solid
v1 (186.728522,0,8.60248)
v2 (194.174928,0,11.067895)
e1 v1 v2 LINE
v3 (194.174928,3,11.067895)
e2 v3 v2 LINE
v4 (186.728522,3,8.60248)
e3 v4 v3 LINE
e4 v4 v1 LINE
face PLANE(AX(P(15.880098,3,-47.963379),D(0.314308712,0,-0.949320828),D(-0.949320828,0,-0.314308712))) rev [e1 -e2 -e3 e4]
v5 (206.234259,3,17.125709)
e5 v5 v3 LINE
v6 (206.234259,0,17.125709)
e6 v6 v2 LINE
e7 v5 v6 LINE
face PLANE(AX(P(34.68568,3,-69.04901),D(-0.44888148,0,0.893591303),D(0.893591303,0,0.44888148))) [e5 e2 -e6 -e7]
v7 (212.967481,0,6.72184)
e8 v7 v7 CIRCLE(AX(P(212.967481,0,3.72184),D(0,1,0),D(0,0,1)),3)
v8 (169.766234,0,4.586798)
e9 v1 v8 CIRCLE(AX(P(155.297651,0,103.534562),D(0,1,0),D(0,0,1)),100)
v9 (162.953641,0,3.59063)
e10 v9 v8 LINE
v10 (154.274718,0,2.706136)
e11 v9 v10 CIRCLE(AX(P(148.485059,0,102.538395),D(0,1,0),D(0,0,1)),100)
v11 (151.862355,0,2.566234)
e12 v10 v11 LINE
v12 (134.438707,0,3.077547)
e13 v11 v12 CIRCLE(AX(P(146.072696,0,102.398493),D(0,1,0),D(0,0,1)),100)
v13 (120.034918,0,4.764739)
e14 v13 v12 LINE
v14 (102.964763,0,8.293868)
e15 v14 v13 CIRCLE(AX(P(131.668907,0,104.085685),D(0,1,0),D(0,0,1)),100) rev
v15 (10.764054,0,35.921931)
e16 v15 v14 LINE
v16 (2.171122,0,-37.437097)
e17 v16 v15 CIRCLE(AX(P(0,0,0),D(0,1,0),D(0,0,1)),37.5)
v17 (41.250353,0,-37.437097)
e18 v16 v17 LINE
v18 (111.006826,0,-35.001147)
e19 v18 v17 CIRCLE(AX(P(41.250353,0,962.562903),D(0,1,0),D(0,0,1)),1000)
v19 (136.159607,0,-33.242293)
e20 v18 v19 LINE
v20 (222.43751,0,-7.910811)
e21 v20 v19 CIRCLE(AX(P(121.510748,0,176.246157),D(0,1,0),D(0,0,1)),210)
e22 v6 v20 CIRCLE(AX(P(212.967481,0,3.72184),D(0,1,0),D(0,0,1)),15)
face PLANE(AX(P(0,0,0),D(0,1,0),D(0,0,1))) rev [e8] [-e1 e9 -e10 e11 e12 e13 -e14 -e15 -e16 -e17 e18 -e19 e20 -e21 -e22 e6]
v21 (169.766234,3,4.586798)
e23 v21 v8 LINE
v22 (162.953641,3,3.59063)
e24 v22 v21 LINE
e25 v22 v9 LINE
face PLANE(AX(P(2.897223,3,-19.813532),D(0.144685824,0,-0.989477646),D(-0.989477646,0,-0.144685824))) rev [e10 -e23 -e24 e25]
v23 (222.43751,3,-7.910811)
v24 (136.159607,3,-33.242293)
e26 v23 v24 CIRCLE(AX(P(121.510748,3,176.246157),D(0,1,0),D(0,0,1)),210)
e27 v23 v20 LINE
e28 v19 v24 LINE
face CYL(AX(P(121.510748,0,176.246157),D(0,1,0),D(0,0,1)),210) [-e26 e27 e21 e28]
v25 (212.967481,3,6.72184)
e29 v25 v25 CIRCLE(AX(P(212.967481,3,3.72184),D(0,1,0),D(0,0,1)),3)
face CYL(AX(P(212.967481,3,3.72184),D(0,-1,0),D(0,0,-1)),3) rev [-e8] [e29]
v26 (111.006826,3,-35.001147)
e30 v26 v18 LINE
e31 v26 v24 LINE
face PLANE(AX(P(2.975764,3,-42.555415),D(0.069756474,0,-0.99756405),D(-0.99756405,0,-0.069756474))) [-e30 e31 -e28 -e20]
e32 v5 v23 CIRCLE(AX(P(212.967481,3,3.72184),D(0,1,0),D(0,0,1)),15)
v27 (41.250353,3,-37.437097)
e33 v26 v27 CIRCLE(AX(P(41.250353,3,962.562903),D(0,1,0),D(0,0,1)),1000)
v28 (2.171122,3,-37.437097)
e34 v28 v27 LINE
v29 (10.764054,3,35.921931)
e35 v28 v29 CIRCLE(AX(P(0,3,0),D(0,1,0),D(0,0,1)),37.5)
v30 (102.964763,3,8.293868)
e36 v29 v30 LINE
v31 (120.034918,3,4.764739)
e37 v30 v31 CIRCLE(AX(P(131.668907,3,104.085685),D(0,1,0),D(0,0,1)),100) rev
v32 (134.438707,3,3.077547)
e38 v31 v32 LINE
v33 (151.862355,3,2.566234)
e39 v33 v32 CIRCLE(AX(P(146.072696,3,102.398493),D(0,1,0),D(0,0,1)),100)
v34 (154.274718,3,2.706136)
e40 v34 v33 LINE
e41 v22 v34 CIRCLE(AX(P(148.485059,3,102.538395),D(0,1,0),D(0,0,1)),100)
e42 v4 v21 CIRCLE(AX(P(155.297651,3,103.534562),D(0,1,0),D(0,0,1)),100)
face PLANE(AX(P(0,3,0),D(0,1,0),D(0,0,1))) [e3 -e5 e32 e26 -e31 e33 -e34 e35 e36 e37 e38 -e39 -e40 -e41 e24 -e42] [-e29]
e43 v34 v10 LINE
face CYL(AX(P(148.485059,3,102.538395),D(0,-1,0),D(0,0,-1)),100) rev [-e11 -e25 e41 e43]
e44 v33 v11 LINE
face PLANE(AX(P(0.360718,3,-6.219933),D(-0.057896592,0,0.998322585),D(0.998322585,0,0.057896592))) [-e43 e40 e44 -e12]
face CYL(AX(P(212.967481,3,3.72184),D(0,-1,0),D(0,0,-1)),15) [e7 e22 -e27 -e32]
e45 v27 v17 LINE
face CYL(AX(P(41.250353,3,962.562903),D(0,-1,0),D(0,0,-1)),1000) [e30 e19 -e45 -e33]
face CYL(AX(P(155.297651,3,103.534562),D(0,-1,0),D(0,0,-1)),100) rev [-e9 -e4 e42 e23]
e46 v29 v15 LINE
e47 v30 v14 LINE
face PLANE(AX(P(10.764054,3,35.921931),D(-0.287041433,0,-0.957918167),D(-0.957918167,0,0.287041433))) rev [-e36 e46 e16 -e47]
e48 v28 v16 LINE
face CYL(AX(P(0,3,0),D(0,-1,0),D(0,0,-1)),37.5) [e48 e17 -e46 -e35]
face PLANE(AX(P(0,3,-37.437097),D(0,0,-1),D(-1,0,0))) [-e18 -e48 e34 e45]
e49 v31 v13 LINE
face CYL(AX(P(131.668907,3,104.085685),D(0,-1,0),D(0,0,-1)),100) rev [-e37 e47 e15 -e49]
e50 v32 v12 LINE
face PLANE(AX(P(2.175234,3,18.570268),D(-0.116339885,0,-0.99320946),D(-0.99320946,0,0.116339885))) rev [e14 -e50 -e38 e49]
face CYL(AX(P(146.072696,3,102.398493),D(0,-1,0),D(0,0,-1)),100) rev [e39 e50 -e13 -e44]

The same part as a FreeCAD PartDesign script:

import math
import FreeCAD as App
import Part
import Sketcher
from FreeCAD import Vector
Q = App.Units.Quantity

doc = App.newDocument("Part")
body = doc.addObject("PartDesign::Body", "Body")

sketch1 = body.newObject("Sketcher::SketchObject", "Sketch")
sketch1.AttachmentSupport = (doc.getObject("XZ_Plane"), [""])
sketch1.MapMode = "FlatFace"
sketch1.addGeometry(Part.LineSegment(Vector(41.3, -37.4, 0), Vector(2.2, -37.4, 0)), False)
sketch1.addGeometry(Part.ArcOfCircle(Part.Circle(Vector(0, 0, 0), Vector(0, 0, 1), 37.5), math.radians(73), math.radians(273)), False)
sketch1.addGeometry(Part.LineSegment(Vector(10.8, 35.9, 0), Vector(103, 8.3, 0)), False)
sketch1.addGeometry(Part.ArcOfCircle(Part.Circle(Vector(131.7, 104.1, 0), Vector(0, 0, 1), 100), math.radians(-106.68), math.radians(-96.68)), False)
sketch1.addGeometry(Part.LineSegment(Vector(120, 4.8, 0), Vector(134.4, 3.1, 0)), False)
sketch1.addGeometry(Part.ArcOfCircle(Part.Circle(Vector(146.1, 102.4, 0), Vector(0, 0, 1), 100), math.radians(-96.68), math.radians(-86.68)), False)
sketch1.addGeometry(Part.LineSegment(Vector(151.9, 2.6, 0), Vector(154.3, 2.7, 0)), False)
sketch1.addGeometry(Part.ArcOfCircle(Part.Circle(Vector(148.5, 102.5, 0), Vector(0, 0, 1), 100), math.radians(-86.68), math.radians(-81.68)), False)
sketch1.addGeometry(Part.LineSegment(Vector(163, 3.6, 0), Vector(169.8, 4.6, 0)), False)
sketch1.addGeometry(Part.ArcOfCircle(Part.Circle(Vector(155.3, 103.5, 0), Vector(0, 0, 1), 100), math.radians(-81.68), math.radians(-71.68)), False)
sketch1.addGeometry(Part.LineSegment(Vector(186.7, 8.6, 0), Vector(194.2, 11.1, 0)), False)
sketch1.addGeometry(Part.LineSegment(Vector(194.2, 11.1, 0), Vector(206.2, 17.1, 0)), False)
sketch1.addGeometry(Part.ArcOfCircle(Part.Circle(Vector(213, 3.7, 0), Vector(0, 0, 1), 15), math.radians(-51), math.radians(117)), False)
sketch1.addGeometry(Part.LineSegment(Vector(222.4, -7.9, 0), Vector(215.5, -12.6, 0)), False)
sketch1.addGeometry(Part.ArcOfCircle(Part.Circle(Vector(159.6, 70.3, 0), Vector(0, 0, 1), 100), math.radians(-76), math.radians(-56)), False)
sketch1.addGeometry(Part.LineSegment(Vector(183.8, -26.7, 0), Vector(174.4, -29, 0)), False)
sketch1.addGeometry(Part.ArcOfCircle(Part.Circle(Vector(150.2, 68, 0), Vector(0, 0, 1), 100), math.radians(-86), math.radians(-76)), False)
sketch1.addGeometry(Part.LineSegment(Vector(157.2, -31.8, 0), Vector(111, -35, 0)), False)
sketch1.addGeometry(Part.ArcOfCircle(Part.Circle(Vector(41.3, 962.6, 0), Vector(0, 0, 1), 1000), math.radians(-90), math.radians(-86)), False)
sketch1.addGeometry(Part.Circle(Vector(213, 3.7, 0), Vector(0, 0, 1), 3), False)
sketch1.addConstraint(Sketcher.Constraint("Coincident", 0, 2, 1, 2))
sketch1.addConstraint(Sketcher.Constraint("Tangent", 1, 1, 2, 1))
sketch1.addConstraint(Sketcher.Constraint("Tangent", 2, 2, 3, 1))
sketch1.addConstraint(Sketcher.Constraint("Tangent", 3, 2, 4, 1))
sketch1.addConstraint(Sketcher.Constraint("Tangent", 4, 2, 5, 1))
sketch1.addConstraint(Sketcher.Constraint("Tangent", 5, 2, 6, 1))
sketch1.addConstraint(Sketcher.Constraint("Tangent", 6, 2, 7, 1))
sketch1.addConstraint(Sketcher.Constraint("Tangent", 7, 2, 8, 1))
sketch1.addConstraint(Sketcher.Constraint("Tangent", 8, 2, 9, 1))
sketch1.addConstraint(Sketcher.Constraint("Tangent", 9, 2, 10, 1))
sketch1.addConstraint(Sketcher.Constraint("Coincident", 10, 2, 11, 1))
sketch1.addConstraint(Sketcher.Constraint("Tangent", 11, 2, 12, 2))
sketch1.addConstraint(Sketcher.Constraint("Coincident", 12, 1, 13, 1))
sketch1.addConstraint(Sketcher.Constraint("Tangent", 13, 2, 14, 2))
sketch1.addConstraint(Sketcher.Constraint("Tangent", 14, 1, 15, 1))
sketch1.addConstraint(Sketcher.Constraint("Tangent", 15, 2, 16, 2))
sketch1.addConstraint(Sketcher.Constraint("Tangent", 16, 1, 17, 1))
sketch1.addConstraint(Sketcher.Constraint("Tangent", 17, 2, 18, 2))
sketch1.addConstraint(Sketcher.Constraint("Tangent", 18, 1, 0, 1))
sketch1.addConstraint(Sketcher.Constraint("Horizontal", 0))
sketch1.addConstraint(Sketcher.Constraint("Coincident", 1, 3, -1, 1))
sketch1.addConstraint(Sketcher.Constraint("Coincident", 19, 3, 12, 3))
sketch1.addConstraint(Sketcher.Constraint("Equal", 3, 5))
sketch1.addConstraint(Sketcher.Constraint("Equal", 5, 7))
sketch1.addConstraint(Sketcher.Constraint("Equal", 7, 9))
sketch1.addConstraint(Sketcher.Constraint("Equal", 9, 14))
sketch1.addConstraint(Sketcher.Constraint("Equal", 14, 16))
sketch1.addConstraint(Sketcher.Constraint("Diameter", 19, 6.0))
sketch1.addConstraint(Sketcher.Constraint("Radius", 3, 100.0))
sketch1.addConstraint(Sketcher.Constraint("Radius", 12, 15.0))
sketch1.addConstraint(Sketcher.Constraint("Radius", 18, 1000.0))
sketch1.addConstraint(Sketcher.Constraint("Radius", 1, 37.5))
sketch1.addConstraint(Sketcher.Constraint("Angle", 13, Q("-146 deg")))
sketch1.addConstraint(Sketcher.Constraint("Angle", 15, Q("-166 deg")))
sketch1.addConstraint(Sketcher.Constraint("Angle", 17, Q("-176 deg")))
sketch1.addConstraint(Sketcher.Constraint("Distance", 13, 8.367302))
sketch1.addConstraint(Sketcher.Constraint("DistanceX", 0, 2, 0, 1, 39.079231))
sketch1.addConstraint(Sketcher.Constraint("DistanceY", -1, 1, 16, 3, 67.987101))
sketch1.addConstraint(Sketcher.Constraint("DistanceX", -1, 1, 14, 1, 183.773601))
sketch1.addConstraint(Sketcher.Constraint("DistanceY", 5, 3, 7, 3, 0.139902))
sketch1.addConstraint(Sketcher.Constraint("DistanceX", 18, 3, 9, 3, 114.047298))
sketch1.addConstraint(Sketcher.Constraint("DistanceY", 12, 3, 3, 2, 1.042899))
sketch1.addConstraint(Sketcher.Constraint("DistanceX", 3, 2, 6, 2, 34.2398))
sketch1.addConstraint(Sketcher.Constraint("Distance", 8, 6.885039))
sketch1.addConstraint(Sketcher.Constraint("Distance", 10, 7.84393))
sketch1.addConstraint(Sketcher.Constraint("DistanceX", -1, 1, 7, 3, 148.485059))
sketch1.addConstraint(Sketcher.Constraint("DistanceX", -1, 1, 9, 3, 155.297651))
sketch1.addConstraint(Sketcher.Constraint("DistanceX", -1, 1, 12, 3, 212.967481))
sketch1.addConstraint(Sketcher.Constraint("DistanceX", -1, 1, 3, 2, 120.034918))
sketch1.addConstraint(Sketcher.Constraint("DistanceY", -1, 1, 7, 2, 3.59063))
sketch1.addConstraint(Sketcher.Constraint("DistanceY", -1, 1, 9, 2, 8.60248))
pad1 = body.newObject("PartDesign::Pad", "Pad")
pad1.Profile = sketch1
pad1.Length = 3
pad1.Reversed = True

sketch2 = body.newObject("Sketcher::SketchObject", "Sketch001")
sketch2.AttachmentSupport = (doc.getObject("XZ_Plane"), [""])
sketch2.MapMode = "FlatFace"
sketch2.AttachmentOffset = App.Placement(Vector(0, 0, -3), App.Rotation())
sketch2.addGeometry(Part.ArcOfCircle(Part.Circle(Vector(122, 176, 0), Vector(0, 0, 1), 210), math.radians(-86), math.radians(-61)), False)
sketch2.addGeometry(Part.LineSegment(Vector(222, -8, 0), Vector(216, -13, 0)), False)
sketch2.addGeometry(Part.ArcOfCircle(Part.Circle(Vector(160, 70, 0), Vector(0, 0, 1), 100), math.radians(-76), math.radians(-56)), False)
sketch2.addGeometry(Part.LineSegment(Vector(184, -27, 0), Vector(174, -29, 0)), False)
sketch2.addGeometry(Part.ArcOfCircle(Part.Circle(Vector(150, 68, 0), Vector(0, 0, 1), 100), math.radians(-86), math.radians(-76)), False)
sketch2.addGeometry(Part.LineSegment(Vector(157, -32, 0), Vector(136, -33, 0)), False)
sketch2.addConstraint(Sketcher.Constraint("Coincident", 0, 2, 1, 1))
sketch2.addConstraint(Sketcher.Constraint("Tangent", 1, 2, 2, 2))
sketch2.addConstraint(Sketcher.Constraint("Tangent", 2, 1, 3, 1))
sketch2.addConstraint(Sketcher.Constraint("Tangent", 3, 2, 4, 2))
sketch2.addConstraint(Sketcher.Constraint("Tangent", 4, 1, 5, 1))
sketch2.addConstraint(Sketcher.Constraint("Tangent", 5, 2, 0, 1))
sketch2.addConstraint(Sketcher.Constraint("Equal", 2, 4))
sketch2.addConstraint(Sketcher.Constraint("Radius", 0, 210.0))
sketch2.addConstraint(Sketcher.Constraint("Radius", 2, 100.0))
sketch2.addConstraint(Sketcher.Constraint("Angle", 1, Q("-146 deg")))
sketch2.addConstraint(Sketcher.Constraint("Angle", 3, Q("-166 deg")))
sketch2.addConstraint(Sketcher.Constraint("Angle", 5, Q("-176 deg")))
sketch2.addConstraint(Sketcher.Constraint("Distance", 1, 8.367302))
sketch2.addConstraint(Sketcher.Constraint("DistanceY", -1, 1, 4, 3, 67.987101))
sketch2.addConstraint(Sketcher.Constraint("DistanceX", -1, 1, 2, 1, 183.773601))
sketch2.addConstraint(Sketcher.Constraint("DistanceY", -1, 1, 2, 3, 70.314011))
pocket1 = body.newObject("PartDesign::Pocket", "Pocket")
pocket1.Profile = sketch2
pocket1.Type = "ThroughAll"
pocket1.Reversed = True

doc.recompute()
